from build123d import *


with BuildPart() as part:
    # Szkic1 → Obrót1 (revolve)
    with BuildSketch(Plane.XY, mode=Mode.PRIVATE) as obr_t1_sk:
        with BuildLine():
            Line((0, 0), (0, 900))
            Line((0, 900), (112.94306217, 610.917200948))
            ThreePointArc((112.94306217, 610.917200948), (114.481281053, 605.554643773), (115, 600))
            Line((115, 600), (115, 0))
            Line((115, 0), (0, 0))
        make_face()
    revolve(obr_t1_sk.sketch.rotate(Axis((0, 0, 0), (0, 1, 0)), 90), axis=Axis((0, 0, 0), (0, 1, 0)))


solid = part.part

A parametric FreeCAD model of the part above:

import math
import FreeCAD as App
import Part
import Sketcher

V = App.Vector
Q = App.Units.Quantity

doc = App.newDocument("Part")
body = doc.addObject("PartDesign::Body", "Body")

# Sketch on XY plane
sketch1 = body.newObject("Sketcher::SketchObject", "Sketch")
sketch1.AttachmentSupport = (doc.getObject("XY_Plane"), [""])
sketch1.MapMode = "FlatFace"
sketch1.addGeometry([
    Part.LineSegment(V(0, 900, 0), V(0, 0, 0)),  # 0
    Part.LineSegment(V(0, 0, 0), V(115, 0, 0)),  # 1
    Part.LineSegment(V(115, 0, 0), V(115, 600, 0)),  # 2
    Part.ArcOfCircle(Part.Circle(V(85, 600, 0), V(0, 0, 1), 30), math.radians(0), math.radians(21.340315)),  # 3
    Part.LineSegment(V(112.943062, 610.917201, 0), V(0, 900, 0)),  # 4
], False)
sketch1.addConstraint([
    Sketcher.Constraint("Coincident", 0, 2, 1, 1),
    Sketcher.Constraint("Coincident", 1, 2, 2, 1),
    Sketcher.Constraint("Tangent", 2, 2, 3, 1),
    Sketcher.Constraint("Tangent", 3, 2, 4, 1),
    Sketcher.Constraint("Coincident", 4, 2, 0, 1),
    Sketcher.Constraint("Vertical", 0),
    Sketcher.Constraint("Horizontal", 1),
    Sketcher.Constraint("Vertical", 2),
    Sketcher.Constraint("Coincident", 0, 2, -1, 1),
    Sketcher.Constraint("Radius", 3, Q("30 mm")),
    Sketcher.Constraint("DistanceX", 1, 1, 1, 2, Q("115 mm")),
    Sketcher.Constraint("DistanceY", 0, 2, 0, 1, Q("900 mm")),
    Sketcher.Constraint("DistanceY", 2, 1, 2, 2, Q("600 mm")),
])
revolution = body.newObject("PartDesign::Revolution", "Revolution")
revolution.Profile = sketch1
revolution.ReferenceAxis = (sketch1, ["V_Axis"])
revolution.Angle = 360

doc.recompute()
